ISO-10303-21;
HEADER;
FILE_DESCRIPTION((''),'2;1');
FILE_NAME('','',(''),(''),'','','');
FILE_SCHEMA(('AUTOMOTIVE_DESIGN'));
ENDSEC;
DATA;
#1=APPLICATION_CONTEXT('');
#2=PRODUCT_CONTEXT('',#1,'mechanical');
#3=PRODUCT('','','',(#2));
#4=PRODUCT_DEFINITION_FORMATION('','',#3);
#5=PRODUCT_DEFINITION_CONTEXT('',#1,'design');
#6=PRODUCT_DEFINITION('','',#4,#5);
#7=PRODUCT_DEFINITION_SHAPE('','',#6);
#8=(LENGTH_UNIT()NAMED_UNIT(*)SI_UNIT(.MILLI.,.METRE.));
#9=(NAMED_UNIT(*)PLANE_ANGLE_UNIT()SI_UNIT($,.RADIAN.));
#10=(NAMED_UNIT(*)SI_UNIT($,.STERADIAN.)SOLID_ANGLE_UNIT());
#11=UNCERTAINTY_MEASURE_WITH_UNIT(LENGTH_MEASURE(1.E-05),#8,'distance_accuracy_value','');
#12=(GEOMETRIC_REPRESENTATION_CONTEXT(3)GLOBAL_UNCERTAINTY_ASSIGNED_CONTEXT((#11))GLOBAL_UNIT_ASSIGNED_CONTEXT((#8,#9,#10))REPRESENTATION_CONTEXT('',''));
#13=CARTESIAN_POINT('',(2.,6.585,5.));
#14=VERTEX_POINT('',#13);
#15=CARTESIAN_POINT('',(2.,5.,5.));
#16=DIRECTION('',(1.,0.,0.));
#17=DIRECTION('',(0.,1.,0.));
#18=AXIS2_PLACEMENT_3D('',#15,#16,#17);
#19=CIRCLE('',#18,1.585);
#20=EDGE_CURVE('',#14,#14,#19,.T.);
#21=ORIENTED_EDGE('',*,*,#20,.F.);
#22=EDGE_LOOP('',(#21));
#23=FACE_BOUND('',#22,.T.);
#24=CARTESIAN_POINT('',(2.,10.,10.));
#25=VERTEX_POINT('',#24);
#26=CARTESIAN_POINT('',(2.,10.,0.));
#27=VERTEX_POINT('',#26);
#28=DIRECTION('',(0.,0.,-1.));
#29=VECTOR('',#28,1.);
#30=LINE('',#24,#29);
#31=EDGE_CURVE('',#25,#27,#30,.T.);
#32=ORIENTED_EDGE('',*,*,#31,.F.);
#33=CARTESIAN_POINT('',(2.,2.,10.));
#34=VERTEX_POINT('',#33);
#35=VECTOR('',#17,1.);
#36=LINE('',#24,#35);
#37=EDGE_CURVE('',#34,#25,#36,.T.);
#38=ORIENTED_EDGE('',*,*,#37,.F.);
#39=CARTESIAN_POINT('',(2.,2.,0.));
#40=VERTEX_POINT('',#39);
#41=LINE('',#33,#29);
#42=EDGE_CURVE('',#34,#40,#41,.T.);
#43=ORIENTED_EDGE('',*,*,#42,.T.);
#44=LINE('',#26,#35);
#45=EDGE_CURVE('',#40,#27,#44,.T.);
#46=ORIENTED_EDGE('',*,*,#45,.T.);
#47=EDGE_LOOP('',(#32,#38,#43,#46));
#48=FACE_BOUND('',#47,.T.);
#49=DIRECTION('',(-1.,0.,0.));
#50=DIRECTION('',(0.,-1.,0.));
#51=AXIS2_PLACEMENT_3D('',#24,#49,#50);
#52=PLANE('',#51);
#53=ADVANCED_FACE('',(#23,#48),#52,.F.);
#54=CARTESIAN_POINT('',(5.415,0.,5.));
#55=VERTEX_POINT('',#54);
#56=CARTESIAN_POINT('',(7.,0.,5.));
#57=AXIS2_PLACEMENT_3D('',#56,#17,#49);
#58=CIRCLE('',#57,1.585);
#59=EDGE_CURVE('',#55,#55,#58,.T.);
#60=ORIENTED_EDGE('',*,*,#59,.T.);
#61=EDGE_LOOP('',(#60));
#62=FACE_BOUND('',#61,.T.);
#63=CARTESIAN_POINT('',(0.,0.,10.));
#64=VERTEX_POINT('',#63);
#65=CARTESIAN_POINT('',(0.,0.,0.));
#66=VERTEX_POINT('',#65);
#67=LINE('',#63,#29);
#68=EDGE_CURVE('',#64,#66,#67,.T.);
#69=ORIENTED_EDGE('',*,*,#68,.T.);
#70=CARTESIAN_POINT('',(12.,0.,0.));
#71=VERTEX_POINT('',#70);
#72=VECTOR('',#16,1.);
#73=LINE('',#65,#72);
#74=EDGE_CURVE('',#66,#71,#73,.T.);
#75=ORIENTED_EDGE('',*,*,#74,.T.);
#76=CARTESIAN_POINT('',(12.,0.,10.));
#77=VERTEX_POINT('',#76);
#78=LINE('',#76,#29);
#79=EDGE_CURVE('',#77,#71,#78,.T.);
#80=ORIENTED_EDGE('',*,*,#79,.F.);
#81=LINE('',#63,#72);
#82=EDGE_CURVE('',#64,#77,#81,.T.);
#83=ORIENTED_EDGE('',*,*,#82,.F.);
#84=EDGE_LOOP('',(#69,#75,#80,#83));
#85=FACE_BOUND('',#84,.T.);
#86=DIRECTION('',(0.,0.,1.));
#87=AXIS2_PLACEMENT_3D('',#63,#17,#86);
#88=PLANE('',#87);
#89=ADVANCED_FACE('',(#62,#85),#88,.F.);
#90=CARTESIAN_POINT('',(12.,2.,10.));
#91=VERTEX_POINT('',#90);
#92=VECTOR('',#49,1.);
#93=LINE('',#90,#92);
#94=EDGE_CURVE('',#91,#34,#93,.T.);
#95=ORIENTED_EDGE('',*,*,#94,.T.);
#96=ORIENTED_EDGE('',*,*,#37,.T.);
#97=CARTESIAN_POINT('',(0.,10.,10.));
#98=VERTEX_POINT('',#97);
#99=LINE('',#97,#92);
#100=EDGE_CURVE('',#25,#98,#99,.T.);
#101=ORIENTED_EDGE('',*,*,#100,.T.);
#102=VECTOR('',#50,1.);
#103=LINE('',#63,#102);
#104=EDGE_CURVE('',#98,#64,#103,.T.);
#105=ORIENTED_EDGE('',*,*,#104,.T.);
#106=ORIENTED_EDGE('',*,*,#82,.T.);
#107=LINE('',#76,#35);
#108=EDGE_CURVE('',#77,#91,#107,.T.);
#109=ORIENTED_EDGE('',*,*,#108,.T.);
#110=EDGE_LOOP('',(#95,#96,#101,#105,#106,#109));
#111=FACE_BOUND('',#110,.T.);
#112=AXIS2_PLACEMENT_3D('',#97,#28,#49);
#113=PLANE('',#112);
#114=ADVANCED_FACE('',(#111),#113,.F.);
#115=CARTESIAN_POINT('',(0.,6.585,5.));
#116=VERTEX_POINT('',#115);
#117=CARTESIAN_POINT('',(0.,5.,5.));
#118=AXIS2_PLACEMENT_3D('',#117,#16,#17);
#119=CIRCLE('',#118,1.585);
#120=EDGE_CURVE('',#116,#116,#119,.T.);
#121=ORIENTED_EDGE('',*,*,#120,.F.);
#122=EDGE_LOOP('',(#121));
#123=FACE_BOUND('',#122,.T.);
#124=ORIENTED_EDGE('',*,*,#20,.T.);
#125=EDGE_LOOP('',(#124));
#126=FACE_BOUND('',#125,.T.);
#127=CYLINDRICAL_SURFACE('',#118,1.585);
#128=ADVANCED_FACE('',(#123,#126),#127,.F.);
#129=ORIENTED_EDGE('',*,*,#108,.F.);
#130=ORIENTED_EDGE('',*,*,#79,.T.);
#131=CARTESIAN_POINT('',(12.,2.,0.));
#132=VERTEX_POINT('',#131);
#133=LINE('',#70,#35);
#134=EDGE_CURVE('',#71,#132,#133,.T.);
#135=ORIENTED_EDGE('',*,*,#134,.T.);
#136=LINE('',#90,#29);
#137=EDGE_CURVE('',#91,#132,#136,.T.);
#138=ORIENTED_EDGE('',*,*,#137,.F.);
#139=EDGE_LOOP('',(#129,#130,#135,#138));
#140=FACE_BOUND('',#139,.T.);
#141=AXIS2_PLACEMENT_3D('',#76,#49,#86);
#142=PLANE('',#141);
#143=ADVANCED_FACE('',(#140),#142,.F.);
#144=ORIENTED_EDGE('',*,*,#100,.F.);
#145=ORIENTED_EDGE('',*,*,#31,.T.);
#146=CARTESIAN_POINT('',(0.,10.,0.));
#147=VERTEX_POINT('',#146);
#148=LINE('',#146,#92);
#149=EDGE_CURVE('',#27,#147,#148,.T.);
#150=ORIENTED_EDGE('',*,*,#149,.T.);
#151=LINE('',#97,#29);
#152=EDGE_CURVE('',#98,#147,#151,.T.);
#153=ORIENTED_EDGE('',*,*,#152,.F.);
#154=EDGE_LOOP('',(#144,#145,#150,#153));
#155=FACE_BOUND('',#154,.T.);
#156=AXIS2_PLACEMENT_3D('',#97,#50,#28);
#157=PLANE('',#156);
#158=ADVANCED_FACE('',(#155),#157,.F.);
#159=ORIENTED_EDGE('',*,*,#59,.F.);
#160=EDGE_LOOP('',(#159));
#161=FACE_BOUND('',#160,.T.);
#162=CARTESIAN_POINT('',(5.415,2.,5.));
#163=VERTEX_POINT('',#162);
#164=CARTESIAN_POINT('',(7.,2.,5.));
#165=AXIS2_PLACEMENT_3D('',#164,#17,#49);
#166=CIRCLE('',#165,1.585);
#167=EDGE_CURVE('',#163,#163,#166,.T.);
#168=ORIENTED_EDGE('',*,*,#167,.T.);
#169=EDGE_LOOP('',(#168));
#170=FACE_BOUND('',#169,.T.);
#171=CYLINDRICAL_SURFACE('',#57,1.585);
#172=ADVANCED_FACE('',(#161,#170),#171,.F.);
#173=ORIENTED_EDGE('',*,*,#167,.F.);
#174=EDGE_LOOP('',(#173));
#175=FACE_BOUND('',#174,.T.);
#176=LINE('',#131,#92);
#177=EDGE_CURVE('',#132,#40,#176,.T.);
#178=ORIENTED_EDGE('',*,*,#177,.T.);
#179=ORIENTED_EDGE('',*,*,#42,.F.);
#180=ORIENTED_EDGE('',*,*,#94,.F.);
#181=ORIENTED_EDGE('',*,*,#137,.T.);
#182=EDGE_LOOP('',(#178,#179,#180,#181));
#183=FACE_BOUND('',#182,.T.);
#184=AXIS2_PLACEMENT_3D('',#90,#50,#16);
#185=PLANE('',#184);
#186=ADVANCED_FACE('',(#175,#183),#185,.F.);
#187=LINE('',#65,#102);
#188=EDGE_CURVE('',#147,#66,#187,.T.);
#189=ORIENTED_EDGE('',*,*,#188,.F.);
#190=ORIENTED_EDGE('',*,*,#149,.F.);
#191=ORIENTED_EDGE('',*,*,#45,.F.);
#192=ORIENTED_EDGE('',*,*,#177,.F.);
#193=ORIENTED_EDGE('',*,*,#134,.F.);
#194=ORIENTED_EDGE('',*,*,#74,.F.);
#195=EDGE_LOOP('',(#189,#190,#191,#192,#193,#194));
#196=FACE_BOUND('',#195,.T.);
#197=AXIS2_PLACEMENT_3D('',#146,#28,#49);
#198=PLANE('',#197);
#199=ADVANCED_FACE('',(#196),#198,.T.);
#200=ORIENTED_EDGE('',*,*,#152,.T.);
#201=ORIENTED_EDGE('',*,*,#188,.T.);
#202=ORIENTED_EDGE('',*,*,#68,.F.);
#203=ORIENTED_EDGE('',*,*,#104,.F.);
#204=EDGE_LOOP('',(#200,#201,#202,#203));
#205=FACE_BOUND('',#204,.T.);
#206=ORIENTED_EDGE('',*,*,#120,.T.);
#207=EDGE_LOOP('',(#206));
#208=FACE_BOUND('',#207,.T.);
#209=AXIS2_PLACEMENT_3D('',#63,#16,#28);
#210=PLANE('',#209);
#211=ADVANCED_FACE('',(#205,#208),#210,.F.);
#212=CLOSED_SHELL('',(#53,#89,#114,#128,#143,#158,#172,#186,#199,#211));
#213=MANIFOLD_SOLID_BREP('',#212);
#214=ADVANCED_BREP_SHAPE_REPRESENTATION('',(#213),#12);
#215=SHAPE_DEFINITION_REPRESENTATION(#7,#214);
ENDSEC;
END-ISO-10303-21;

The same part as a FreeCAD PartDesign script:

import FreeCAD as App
import Part
import Sketcher
from FreeCAD import Vector
Q = App.Units.Quantity


def add_polygon(sketch, points):
    """Adds a closed chain of lines whose ends are joined by coincident constraints."""
    first, n = sketch.GeometryCount, len(points)
    for a, b in zip(points, points[1:] + points[:1]):
        sketch.addGeometry(Part.LineSegment(App.Vector(*a, 0), App.Vector(*b, 0)), False)
    for i in range(n):
        sketch.addConstraint(Sketcher.Constraint("Coincident", first + i, 2, first + (i + 1) % n, 1))

doc = App.newDocument("Part")
params = doc.addObject("Spreadsheet::Sheet", "Params")
for row, (alias, value) in enumerate([
    ("sketch1_width", "12 mm"),
    ("sketch1_width2", "10 mm"),
    ("pad1_length", "10 mm"),
    ("sketch2_diameter", "3.17 mm"),
    ("sketch3_diameter", "3.17 mm"),
], start=1):
    params.set(f"A{row}", alias)
    params.set(f"B{row}", "=" + value)
    params.setAlias(f"B{row}", alias)

body = doc.addObject("PartDesign::Body", "Body")

# Sketch on XY plane
sketch1 = doc.addObject("Sketcher::SketchObject", "Sketch")
body.addObject(sketch1)
sketch1.AttachmentSupport = (doc.XY_Plane, [""])
sketch1.MapMode = "FlatFace"
add_polygon(sketch1, [(0, 0), (12, 0), (12, 2), (2, 2), (2, 10), (0, 10)])  # lines 0-5
sketch1.addConstraint(Sketcher.Constraint("Horizontal", 0))
sketch1.addConstraint(Sketcher.Constraint("Vertical", 1))
sketch1.addConstraint(Sketcher.Constraint("Horizontal", 2))
sketch1.addConstraint(Sketcher.Constraint("Vertical", 3))
sketch1.addConstraint(Sketcher.Constraint("Horizontal", 4))
sketch1.addConstraint(Sketcher.Constraint("Vertical", 5))
sketch1.addConstraint(Sketcher.Constraint("Coincident", 5, 2, -1, 1))
sketch1.addConstraint(Sketcher.Constraint("Equal", 4, 1))
sketch1.addConstraint(Sketcher.Constraint("Equal", 2, 5))
sketch1.addConstraint(Sketcher.Constraint("DistanceX", 0, 1, 0, 2, Q("12 mm")))
sketch1.addConstraint(Sketcher.Constraint("DistanceX", 2, 2, 2, 1, Q("10 mm")))
sketch1.setExpression("Constraints[15]", "Params.sketch1_width")
sketch1.setExpression("Constraints[16]", "Params.sketch1_width2")
pad1 = doc.addObject("PartDesign::Pad", "Pad")
body.addObject(pad1)
pad1.Profile = sketch1
pad1.setExpression("Length", "Params.pad1_length")

# Sketch on XZ plane
sketch2 = doc.addObject("Sketcher::SketchObject", "Sketch001")
body.addObject(sketch2)
sketch2.AttachmentSupport = (doc.XZ_Plane, [""])
sketch2.MapMode = "FlatFace"
sketch2.AttachmentOffset = App.Placement(Vector(0, 0, -2), App.Rotation())
sketch2.addGeometry(Part.Circle(Vector(7, 5, 0), Vector(0, 0, 1), 1.585), False)
sketch2.addConstraint(Sketcher.Constraint("Diameter", 0, Q("3.17 mm")))
sketch2.addConstraint(Sketcher.Constraint("DistanceX", -1, 1, 0, 3, Q("7 mm")))
sketch2.addConstraint(Sketcher.Constraint("DistanceY", -1, 1, 0, 3, Q("5 mm")))
sketch2.setExpression("Constraints[0]", "Params.sketch2_diameter")
pocket1 = doc.addObject("PartDesign::Pocket", "Pocket")
body.addObject(pocket1)
pocket1.Profile = sketch2
pocket1.Type = "ThroughAll"
pocket1.Reversed = True

# Sketch on YZ plane
sketch3 = doc.addObject("Sketcher::SketchObject", "Sketch002")
body.addObject(sketch3)
sketch3.AttachmentSupport = (doc.YZ_Plane, [""])
sketch3.MapMode = "FlatFace"
sketch3.AttachmentOffset = App.Placement(Vector(0, 0, 2), App.Rotation())
sketch3.addGeometry(Part.Circle(Vector(5, 5, 0), Vector(0, 0, 1), 1.585), False)
sketch3.addConstraint(Sketcher.Constraint("Diameter", 0, Q("3.17 mm")))
sketch3.addConstraint(Sketcher.Constraint("DistanceX", -1, 1, 0, 3, Q("5 mm")))
sketch3.addConstraint(Sketcher.Constraint("DistanceY", -1, 1, 0, 3, Q("5 mm")))
sketch3.setExpression("Constraints[0]", "Params.sketch3_diameter")
pocket2 = doc.addObject("PartDesign::Pocket", "Pocket001")
body.addObject(pocket2)
pocket2.Profile = sketch3
pocket2.Type = "ThroughAll"

doc.recompute()
